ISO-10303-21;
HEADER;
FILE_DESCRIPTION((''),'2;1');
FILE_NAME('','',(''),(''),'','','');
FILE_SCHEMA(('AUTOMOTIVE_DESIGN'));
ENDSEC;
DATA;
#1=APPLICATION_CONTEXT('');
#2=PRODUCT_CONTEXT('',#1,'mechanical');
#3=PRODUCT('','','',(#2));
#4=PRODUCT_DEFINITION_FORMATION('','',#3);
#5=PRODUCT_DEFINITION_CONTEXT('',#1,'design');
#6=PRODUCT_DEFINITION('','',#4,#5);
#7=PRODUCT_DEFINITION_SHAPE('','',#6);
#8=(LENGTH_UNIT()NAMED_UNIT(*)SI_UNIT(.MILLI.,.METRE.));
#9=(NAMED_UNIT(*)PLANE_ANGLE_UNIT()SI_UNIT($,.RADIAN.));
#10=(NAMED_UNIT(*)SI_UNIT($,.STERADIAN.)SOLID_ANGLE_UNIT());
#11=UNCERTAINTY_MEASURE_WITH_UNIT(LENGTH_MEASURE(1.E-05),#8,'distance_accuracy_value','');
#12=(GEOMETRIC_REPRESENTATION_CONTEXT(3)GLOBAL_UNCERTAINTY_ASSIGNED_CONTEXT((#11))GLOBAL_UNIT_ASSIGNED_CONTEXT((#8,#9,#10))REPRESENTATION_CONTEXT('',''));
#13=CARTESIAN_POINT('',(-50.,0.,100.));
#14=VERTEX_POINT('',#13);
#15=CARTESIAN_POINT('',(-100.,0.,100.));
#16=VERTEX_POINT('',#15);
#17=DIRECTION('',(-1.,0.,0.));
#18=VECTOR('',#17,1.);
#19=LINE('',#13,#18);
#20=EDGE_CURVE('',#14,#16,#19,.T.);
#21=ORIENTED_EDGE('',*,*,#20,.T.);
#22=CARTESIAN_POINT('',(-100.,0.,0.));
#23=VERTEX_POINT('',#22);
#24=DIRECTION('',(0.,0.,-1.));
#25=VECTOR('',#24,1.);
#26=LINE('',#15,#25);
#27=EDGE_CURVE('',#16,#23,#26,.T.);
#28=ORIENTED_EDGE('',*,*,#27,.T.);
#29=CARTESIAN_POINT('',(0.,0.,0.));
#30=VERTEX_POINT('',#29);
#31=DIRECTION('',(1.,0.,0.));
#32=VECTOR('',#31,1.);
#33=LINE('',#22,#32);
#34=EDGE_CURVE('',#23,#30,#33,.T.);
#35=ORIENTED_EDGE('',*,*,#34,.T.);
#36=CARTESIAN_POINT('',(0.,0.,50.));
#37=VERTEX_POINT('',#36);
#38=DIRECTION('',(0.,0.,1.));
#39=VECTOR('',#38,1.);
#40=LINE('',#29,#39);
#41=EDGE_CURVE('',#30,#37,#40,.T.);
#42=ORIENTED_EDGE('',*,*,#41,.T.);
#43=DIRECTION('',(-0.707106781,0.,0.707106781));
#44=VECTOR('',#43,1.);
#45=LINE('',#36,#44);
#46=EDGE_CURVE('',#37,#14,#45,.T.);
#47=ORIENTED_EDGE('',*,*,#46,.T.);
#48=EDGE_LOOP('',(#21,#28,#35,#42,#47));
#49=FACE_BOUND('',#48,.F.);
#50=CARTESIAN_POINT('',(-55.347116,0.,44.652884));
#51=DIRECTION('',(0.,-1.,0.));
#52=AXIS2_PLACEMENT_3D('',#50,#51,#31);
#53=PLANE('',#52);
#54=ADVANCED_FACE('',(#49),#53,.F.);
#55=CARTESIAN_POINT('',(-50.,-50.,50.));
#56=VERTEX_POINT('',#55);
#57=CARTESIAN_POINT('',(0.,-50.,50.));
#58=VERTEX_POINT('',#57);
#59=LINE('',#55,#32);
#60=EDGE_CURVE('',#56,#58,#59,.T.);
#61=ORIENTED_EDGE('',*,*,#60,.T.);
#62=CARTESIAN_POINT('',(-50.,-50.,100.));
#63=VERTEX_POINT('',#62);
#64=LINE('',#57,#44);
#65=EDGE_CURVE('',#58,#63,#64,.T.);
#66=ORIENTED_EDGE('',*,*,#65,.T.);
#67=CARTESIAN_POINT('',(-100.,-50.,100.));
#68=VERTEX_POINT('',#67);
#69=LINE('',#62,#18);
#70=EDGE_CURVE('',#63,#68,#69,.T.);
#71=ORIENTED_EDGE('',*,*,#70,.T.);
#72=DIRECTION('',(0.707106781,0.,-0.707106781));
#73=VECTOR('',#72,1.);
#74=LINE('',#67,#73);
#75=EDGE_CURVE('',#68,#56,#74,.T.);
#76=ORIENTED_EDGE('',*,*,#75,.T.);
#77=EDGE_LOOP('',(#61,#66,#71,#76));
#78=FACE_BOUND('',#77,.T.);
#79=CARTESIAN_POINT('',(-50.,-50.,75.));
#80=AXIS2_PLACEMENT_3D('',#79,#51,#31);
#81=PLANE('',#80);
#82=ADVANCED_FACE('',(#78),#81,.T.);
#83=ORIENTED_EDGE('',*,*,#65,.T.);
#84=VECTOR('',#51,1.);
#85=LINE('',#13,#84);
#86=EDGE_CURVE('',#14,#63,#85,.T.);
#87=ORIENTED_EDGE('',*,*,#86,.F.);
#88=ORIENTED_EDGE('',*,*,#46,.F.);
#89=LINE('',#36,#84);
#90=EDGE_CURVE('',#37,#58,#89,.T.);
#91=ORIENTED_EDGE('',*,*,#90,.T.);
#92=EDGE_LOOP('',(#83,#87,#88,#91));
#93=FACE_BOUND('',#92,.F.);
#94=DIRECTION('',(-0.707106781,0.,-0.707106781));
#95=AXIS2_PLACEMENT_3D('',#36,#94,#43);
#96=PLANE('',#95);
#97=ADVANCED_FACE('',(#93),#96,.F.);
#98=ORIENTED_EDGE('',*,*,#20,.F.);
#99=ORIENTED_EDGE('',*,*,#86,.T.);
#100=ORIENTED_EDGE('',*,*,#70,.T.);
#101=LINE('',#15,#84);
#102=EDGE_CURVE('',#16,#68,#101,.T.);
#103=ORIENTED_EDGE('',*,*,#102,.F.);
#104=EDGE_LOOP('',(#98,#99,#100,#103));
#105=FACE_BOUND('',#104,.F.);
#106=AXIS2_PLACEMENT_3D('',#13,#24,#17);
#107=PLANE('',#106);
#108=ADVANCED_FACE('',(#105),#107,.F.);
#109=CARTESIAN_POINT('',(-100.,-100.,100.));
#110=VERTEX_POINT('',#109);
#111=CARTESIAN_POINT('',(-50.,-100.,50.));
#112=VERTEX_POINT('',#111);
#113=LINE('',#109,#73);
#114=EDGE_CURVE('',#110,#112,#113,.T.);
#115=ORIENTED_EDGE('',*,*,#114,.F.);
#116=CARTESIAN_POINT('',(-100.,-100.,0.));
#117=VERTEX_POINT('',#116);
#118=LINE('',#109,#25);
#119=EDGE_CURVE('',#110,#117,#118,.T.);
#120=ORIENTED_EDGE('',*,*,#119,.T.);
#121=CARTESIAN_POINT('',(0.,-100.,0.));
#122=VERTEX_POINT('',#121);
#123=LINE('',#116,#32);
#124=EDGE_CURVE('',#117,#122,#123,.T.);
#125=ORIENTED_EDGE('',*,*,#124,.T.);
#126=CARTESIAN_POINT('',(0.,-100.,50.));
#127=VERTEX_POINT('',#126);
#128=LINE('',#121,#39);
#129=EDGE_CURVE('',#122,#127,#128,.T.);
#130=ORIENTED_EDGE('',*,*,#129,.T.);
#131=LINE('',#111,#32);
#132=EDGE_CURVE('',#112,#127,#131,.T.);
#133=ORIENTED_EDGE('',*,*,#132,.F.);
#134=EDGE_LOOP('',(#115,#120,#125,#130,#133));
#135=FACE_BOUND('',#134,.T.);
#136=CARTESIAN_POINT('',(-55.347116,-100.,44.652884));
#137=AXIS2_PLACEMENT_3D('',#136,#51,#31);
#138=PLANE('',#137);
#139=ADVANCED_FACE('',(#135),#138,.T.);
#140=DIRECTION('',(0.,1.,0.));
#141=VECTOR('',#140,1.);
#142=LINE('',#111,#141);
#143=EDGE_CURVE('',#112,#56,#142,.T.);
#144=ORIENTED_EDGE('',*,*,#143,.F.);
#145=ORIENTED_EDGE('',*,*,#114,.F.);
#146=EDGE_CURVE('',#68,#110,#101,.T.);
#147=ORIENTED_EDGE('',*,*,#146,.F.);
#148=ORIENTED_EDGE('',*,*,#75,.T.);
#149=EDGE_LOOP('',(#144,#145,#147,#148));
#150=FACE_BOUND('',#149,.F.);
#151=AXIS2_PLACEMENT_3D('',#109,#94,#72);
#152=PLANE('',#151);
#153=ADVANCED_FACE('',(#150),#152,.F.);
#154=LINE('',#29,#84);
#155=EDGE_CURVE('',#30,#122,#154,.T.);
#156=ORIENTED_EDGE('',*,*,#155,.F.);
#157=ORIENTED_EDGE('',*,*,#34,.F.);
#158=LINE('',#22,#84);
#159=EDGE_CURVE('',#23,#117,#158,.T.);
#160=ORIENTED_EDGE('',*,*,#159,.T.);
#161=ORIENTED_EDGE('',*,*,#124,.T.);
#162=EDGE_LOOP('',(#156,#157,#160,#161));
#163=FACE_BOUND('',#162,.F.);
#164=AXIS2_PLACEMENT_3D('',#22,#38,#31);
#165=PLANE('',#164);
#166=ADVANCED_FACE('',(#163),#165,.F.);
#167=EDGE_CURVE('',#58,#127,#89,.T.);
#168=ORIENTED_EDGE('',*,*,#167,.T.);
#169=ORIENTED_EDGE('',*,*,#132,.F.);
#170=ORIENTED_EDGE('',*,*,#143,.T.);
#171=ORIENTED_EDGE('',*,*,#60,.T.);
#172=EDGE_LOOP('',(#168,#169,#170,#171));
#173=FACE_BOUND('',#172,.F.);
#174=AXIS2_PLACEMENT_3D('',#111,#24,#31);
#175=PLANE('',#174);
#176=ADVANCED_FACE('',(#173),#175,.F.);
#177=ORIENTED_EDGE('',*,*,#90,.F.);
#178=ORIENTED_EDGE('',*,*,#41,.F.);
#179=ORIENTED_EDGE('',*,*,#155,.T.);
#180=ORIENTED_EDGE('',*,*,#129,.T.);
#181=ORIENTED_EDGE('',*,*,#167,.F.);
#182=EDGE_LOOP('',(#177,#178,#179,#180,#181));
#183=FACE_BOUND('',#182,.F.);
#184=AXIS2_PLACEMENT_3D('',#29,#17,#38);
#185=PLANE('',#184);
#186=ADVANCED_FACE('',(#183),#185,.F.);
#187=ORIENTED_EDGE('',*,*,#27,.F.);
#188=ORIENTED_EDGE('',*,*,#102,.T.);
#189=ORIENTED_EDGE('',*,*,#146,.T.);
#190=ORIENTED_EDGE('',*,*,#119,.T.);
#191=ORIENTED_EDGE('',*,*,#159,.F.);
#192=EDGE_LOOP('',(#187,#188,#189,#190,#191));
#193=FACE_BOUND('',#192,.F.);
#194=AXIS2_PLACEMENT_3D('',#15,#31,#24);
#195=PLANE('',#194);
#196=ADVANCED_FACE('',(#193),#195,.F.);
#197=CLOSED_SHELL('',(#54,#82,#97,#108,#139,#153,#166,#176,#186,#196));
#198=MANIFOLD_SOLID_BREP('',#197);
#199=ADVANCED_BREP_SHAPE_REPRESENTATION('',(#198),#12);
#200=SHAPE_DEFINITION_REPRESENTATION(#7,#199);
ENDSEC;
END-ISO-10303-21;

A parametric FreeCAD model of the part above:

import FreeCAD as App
import Part
import Sketcher

V = App.Vector
Q = App.Units.Quantity

doc = App.newDocument("Part")
params = doc.addObject("Spreadsheet::Sheet", "Params")
for row, (alias, value) in enumerate([
    ("sketch1_width", "100 mm"),
    ("sketch1_width2", "50 mm"),
    ("pad1_length", "100 mm"),
    ("sketch2_width", "50 mm"),
    ("pocket1_length", "50 mm"),
], start=1):
    params.set(f"A{row}", alias)
    params.set(f"B{row}", "=" + value)
    params.setAlias(f"B{row}", alias)

body = doc.addObject("PartDesign::Body", "Body")

# Sketch on XZ plane
sketch1 = body.newObject("Sketcher::SketchObject", "Sketch")
sketch1.AttachmentSupport = (doc.getObject("XZ_Plane"), [""])
sketch1.MapMode = "FlatFace"
sketch1.addGeometry([
    Part.LineSegment(V(-100, 0, 0), V(0, 0, 0)),  # 0
    Part.LineSegment(V(0, 0, 0), V(0, 50, 0)),  # 1
    Part.LineSegment(V(0, 50, 0), V(-50, 100, 0)),  # 2
    Part.LineSegment(V(-50, 100, 0), V(-100, 100, 0)),  # 3
    Part.LineSegment(V(-100, 100, 0), V(-100, 0, 0)),  # 4
], False)
sketch1.addConstraint([
    Sketcher.Constraint("Coincident", 0, 2, 1, 1),
    Sketcher.Constraint("Coincident", 1, 2, 2, 1),
    Sketcher.Constraint("Coincident", 2, 2, 3, 1),
    Sketcher.Constraint("Coincident", 3, 2, 4, 1),
    Sketcher.Constraint("Coincident", 4, 2, 0, 1),
    Sketcher.Constraint("Horizontal", 0),
    Sketcher.Constraint("Vertical", 1),
    Sketcher.Constraint("Horizontal", 3),
    Sketcher.Constraint("Vertical", 4),
    Sketcher.Constraint("Coincident", 0, 2, -1, 1),
    Sketcher.Constraint("Equal", 3, 1),
    Sketcher.Constraint("Equal", 0, 4),
    Sketcher.Constraint("DistanceX", 0, 1, 0, 2, 100.0),
    Sketcher.Constraint("DistanceX", 3, 2, 3, 1, 50.0),
])
sketch1.setExpression("Constraints[12]", "Params.sketch1_width")
sketch1.setExpression("Constraints[13]", "Params.sketch1_width2")
pad1 = body.newObject("PartDesign::Pad", "Pad")
pad1.Profile = sketch1
pad1.setExpression("Length", "Params.pad1_length")

# Sketch on XZ plane
sketch2 = body.newObject("Sketcher::SketchObject", "Sketch001")
sketch2.AttachmentSupport = (doc.getObject("XZ_Plane"), [""])
sketch2.MapMode = "FlatFace"
sketch2.AttachmentOffset = App.Placement(V(0, 0, 100), App.Rotation())
sketch2.addGeometry([
    Part.LineSegment(V(-50, 50, 0), V(0, 50, 0)),
    Part.LineSegment(V(0, 50, 0), V(-50, 100, 0)),
    Part.LineSegment(V(-50, 100, 0), V(-100, 100, 0)),
    Part.LineSegment(V(-100, 100, 0), V(-50, 50, 0)),
], False)
sketch2.addConstraint([
    Sketcher.Constraint("Coincident", 0, 2, 1, 1),
    Sketcher.Constraint("Coincident", 1, 2, 2, 1),
    Sketcher.Constraint("Coincident", 2, 2, 3, 1),
    Sketcher.Constraint("Coincident", 3, 2, 0, 1),
    Sketcher.Constraint("Horizontal", 0),
    Sketcher.Constraint("Horizontal", 2),
    Sketcher.Constraint("PointOnObject", 0, 2, -2),
    Sketcher.Constraint("Parallel", 1, 3),
    Sketcher.Constraint("Vertical", 1, 2, 3, 2),
    Sketcher.Constraint("DistanceX", 0, 1, 0, 2, 50.0),
    Sketcher.Constraint("Angle", 1, Q("135 deg")),
    Sketcher.Constraint("DistanceY", -1, 1, 0, 2, 50.0),
])
sketch2.setExpression("Constraints[9]", "Params.sketch2_width")
pocket1 = body.newObject("PartDesign::Pocket", "Pocket")
pocket1.Profile = sketch2
pocket1.setExpression("Length", "Params.pocket1_length")

doc.recompute()
